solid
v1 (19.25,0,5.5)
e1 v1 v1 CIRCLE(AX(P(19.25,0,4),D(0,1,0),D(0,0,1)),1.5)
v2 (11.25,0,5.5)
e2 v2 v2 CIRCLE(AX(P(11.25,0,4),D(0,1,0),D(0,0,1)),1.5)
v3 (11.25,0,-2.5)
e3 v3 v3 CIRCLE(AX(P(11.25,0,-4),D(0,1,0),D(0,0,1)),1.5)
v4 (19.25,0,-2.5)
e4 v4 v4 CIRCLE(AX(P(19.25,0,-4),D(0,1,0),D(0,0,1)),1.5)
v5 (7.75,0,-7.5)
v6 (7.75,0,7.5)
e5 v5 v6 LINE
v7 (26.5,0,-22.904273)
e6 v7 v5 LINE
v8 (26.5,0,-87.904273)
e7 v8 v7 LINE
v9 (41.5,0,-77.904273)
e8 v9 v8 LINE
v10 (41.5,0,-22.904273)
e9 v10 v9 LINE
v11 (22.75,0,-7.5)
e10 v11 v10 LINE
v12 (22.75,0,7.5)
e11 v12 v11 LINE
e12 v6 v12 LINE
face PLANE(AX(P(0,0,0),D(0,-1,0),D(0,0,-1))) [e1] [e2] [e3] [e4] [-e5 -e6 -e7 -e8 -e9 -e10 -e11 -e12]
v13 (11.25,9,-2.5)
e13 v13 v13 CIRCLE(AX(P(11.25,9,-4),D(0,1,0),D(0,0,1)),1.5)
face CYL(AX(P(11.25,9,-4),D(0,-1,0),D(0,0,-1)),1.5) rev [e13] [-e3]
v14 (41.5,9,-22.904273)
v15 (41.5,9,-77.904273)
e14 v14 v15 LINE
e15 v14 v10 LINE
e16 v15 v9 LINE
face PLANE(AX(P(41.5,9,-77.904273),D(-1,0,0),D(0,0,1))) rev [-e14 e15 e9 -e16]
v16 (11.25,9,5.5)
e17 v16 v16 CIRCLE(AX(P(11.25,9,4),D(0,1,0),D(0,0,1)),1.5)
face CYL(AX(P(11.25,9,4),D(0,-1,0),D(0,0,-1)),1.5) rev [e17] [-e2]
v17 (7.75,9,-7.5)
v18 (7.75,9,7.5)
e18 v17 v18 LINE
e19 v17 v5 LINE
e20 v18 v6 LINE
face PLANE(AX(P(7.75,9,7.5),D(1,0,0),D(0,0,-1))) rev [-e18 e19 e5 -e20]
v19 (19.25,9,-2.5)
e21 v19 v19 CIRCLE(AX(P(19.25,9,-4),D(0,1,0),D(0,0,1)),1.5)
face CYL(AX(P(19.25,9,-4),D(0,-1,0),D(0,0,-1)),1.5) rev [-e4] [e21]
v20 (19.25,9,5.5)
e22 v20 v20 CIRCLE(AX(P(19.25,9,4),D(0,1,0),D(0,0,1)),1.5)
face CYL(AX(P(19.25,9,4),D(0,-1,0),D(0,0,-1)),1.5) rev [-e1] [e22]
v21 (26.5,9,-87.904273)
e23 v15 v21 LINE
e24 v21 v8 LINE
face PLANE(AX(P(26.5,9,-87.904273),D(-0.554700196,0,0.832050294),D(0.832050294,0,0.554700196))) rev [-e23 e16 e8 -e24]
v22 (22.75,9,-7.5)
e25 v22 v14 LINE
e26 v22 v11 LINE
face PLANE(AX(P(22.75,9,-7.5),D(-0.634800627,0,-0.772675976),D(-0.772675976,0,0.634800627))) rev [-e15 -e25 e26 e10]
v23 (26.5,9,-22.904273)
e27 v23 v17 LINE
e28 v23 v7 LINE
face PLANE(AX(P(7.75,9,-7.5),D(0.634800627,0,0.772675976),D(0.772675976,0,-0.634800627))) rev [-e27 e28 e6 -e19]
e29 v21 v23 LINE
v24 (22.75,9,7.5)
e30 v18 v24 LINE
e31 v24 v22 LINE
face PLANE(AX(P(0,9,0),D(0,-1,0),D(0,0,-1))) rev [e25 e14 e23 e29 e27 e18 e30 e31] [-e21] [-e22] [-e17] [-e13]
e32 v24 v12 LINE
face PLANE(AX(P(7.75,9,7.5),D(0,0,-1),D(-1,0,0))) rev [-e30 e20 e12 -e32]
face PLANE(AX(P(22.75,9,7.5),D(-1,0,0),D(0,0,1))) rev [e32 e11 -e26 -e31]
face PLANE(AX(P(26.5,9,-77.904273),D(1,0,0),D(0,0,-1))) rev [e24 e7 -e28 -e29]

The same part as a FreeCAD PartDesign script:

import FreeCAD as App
import Part
import Sketcher
Q = App.Units.Quantity


def add_polygon(sketch, points):
    """Adds a closed chain of lines whose ends are joined by coincident constraints."""
    first, n = sketch.GeometryCount, len(points)
    for a, b in zip(points, points[1:] + points[:1]):
        sketch.addGeometry(Part.LineSegment(App.Vector(*a, 0), App.Vector(*b, 0)), False)
    for i in range(n):
        sketch.addConstraint(Sketcher.Constraint("Coincident", first + i, 2, first + (i + 1) % n, 1))

doc = App.newDocument("Part")
params = doc.addObject("Spreadsheet::Sheet", "Params")
for row, (alias, value) in enumerate([
    ("sketch1_diameter", "3 mm"),
    ("sketch1_width", "15 mm"),
    ("sketch1_height", "55 mm"),
    ("sketch1_height2", "65 mm"),
    ("pad1_length", "9 mm"),
], start=1):
    params.set(f"A{row}", alias)
    params.set(f"B{row}", "=" + value)
    params.setAlias(f"B{row}", alias)

body = doc.addObject("PartDesign::Body", "Body")

# Sketch on XZ plane
sketch1 = body.newObject("Sketcher::SketchObject", "Sketch")
sketch1.AttachmentSupport = (doc.getObject("XZ_Plane"), [""])
sketch1.MapMode = "FlatFace"
add_polygon(sketch1, [(26.5, -22.904273), (7.75, -7.5), (7.75, 7.5), (22.75, 7.5), (22.75, -7.5), (41.5, -22.904273), (41.5, -77.904273), (26.5, -87.904273)])  # lines 0-7
sketch1.addGeometry(Part.Circle(App.Vector(19.25, 4, 0), App.Vector(0, 0, 1), 1.5), False)  # 8
sketch1.addGeometry(Part.Circle(App.Vector(11.25, 4, 0), App.Vector(0, 0, 1), 1.5), False)  # 9
sketch1.addGeometry(Part.Circle(App.Vector(19.25, -4, 0), App.Vector(0, 0, 1), 1.5), False)  # 10
sketch1.addGeometry(Part.Circle(App.Vector(11.25, -4, 0), App.Vector(0, 0, 1), 1.5), False)  # 11
sketch1.addConstraint([
    Sketcher.Constraint("Vertical", 1),
    Sketcher.Constraint("Horizontal", 2),
    Sketcher.Constraint("Vertical", 3),
    Sketcher.Constraint("Vertical", 5),
    Sketcher.Constraint("Vertical", 7),
    Sketcher.Constraint("Equal", 8, 9),
    Sketcher.Constraint("Equal", 9, 10),
    Sketcher.Constraint("Equal", 10, 11),
    Sketcher.Constraint("Symmetric", 8, 3, 10, 3, -1),
    Sketcher.Constraint("Symmetric", 9, 3, 11, 3, -1),
    Sketcher.Constraint("Parallel", 0, 4),
    Sketcher.Constraint("Horizontal", 8, 3, 9, 3),
    Sketcher.Constraint("Horizontal", 0, 2, 3, 2),
    Sketcher.Constraint("Horizontal", 4, 2, 7, 2),
    Sketcher.Constraint("Equal", 2, 1),
    Sketcher.Constraint("Diameter", 8, Q("3 mm")),
    Sketcher.Constraint("DistanceX", 2, 1, 2, 2, Q("15 mm")),
    Sketcher.Constraint("DistanceY", 5, 2, 5, 1, Q("55 mm")),
    Sketcher.Constraint("DistanceY", 7, 1, 7, 2, Q("65 mm")),
    Sketcher.Constraint("DistanceY", -1, 1, 8, 3, Q("4 mm")),
    Sketcher.Constraint("DistanceX", 9, 3, 8, 3, Q("8 mm")),
    Sketcher.Constraint("DistanceY", 0, 2, -1, 1, Q("7.5 mm")),
    Sketcher.Constraint("DistanceX", -1, 1, 4, 2, Q("41.5 mm")),
    Sketcher.Constraint("DistanceX", 0, 2, 11, 3, Q("3.5 mm")),
    Sketcher.Constraint("DistanceX", -1, 1, 8, 3, Q("19.25 mm")),
    Sketcher.Constraint("Distance", 0, Q("24.266317 mm")),
])
sketch1.setExpression("Constraints[23]", "Params.sketch1_diameter")
sketch1.setExpression("Constraints[24]", "Params.sketch1_width")
sketch1.setExpression("Constraints[25]", "Params.sketch1_height")
sketch1.setExpression("Constraints[26]", "Params.sketch1_height2")
pad1 = body.newObject("PartDesign::Pad", "Pad")
pad1.Profile = sketch1
pad1.setExpression("Length", "Params.pad1_length")
pad1.Reversed = True

doc.recompute()
